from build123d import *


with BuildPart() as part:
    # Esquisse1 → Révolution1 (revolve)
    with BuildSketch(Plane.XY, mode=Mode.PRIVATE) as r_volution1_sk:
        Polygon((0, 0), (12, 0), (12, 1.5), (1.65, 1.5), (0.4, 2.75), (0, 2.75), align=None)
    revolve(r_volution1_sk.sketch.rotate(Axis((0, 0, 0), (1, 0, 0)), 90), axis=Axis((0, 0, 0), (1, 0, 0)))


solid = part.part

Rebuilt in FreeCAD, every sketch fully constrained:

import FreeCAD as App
import Part
import Sketcher
from FreeCAD import Vector
Q = App.Units.Quantity


def add_polygon(sketch, points):
    """Adds a closed chain of lines whose ends are joined by coincident constraints."""
    first, n = sketch.GeometryCount, len(points)
    for a, b in zip(points, points[1:] + points[:1]):
        sketch.addGeometry(Part.LineSegment(App.Vector(*a, 0), App.Vector(*b, 0)), False)
    for i in range(n):
        sketch.addConstraint(Sketcher.Constraint("Coincident", first + i, 2, first + (i + 1) % n, 1))

doc = App.newDocument("Part")
body = doc.addObject("PartDesign::Body", "Body")

sketch1 = body.newObject("Sketcher::SketchObject", "Sketch")
sketch1.AttachmentSupport = (doc.getObject("XY_Plane"), [""])
sketch1.MapMode = "FlatFace"
add_polygon(sketch1, [(0, 0), (12, 0), (12, 1.5), (1.65, 1.5), (0.4, 2.75), (0, 2.75)])
sketch1.addConstraint(Sketcher.Constraint("Horizontal", 0))
sketch1.addConstraint(Sketcher.Constraint("Vertical", 1))
sketch1.addConstraint(Sketcher.Constraint("Horizontal", 2))
sketch1.addConstraint(Sketcher.Constraint("Horizontal", 4))
sketch1.addConstraint(Sketcher.Constraint("Vertical", 5))
sketch1.addConstraint(Sketcher.Constraint("Coincident", 5, 2, -1, 1))
sketch1.addConstraint(Sketcher.Constraint("DistanceX", 0, 1, 0, 2, 12.0))
sketch1.addConstraint(Sketcher.Constraint("Angle", 3, Q("135 deg")))
sketch1.addConstraint(Sketcher.Constraint("DistanceX", 4, 2, 4, 1, 0.4))
sketch1.addConstraint(Sketcher.Constraint("DistanceY", 1, 1, 1, 2, 1.5))
sketch1.addConstraint(Sketcher.Constraint("DistanceX", 2, 2, 2, 1, 10.35))
revolution = body.newObject("PartDesign::Revolution", "Revolution")
revolution.Profile = sketch1
revolution.ReferenceAxis = (sketch1, ["H_Axis"])
revolution.Angle = 360

doc.recompute()
